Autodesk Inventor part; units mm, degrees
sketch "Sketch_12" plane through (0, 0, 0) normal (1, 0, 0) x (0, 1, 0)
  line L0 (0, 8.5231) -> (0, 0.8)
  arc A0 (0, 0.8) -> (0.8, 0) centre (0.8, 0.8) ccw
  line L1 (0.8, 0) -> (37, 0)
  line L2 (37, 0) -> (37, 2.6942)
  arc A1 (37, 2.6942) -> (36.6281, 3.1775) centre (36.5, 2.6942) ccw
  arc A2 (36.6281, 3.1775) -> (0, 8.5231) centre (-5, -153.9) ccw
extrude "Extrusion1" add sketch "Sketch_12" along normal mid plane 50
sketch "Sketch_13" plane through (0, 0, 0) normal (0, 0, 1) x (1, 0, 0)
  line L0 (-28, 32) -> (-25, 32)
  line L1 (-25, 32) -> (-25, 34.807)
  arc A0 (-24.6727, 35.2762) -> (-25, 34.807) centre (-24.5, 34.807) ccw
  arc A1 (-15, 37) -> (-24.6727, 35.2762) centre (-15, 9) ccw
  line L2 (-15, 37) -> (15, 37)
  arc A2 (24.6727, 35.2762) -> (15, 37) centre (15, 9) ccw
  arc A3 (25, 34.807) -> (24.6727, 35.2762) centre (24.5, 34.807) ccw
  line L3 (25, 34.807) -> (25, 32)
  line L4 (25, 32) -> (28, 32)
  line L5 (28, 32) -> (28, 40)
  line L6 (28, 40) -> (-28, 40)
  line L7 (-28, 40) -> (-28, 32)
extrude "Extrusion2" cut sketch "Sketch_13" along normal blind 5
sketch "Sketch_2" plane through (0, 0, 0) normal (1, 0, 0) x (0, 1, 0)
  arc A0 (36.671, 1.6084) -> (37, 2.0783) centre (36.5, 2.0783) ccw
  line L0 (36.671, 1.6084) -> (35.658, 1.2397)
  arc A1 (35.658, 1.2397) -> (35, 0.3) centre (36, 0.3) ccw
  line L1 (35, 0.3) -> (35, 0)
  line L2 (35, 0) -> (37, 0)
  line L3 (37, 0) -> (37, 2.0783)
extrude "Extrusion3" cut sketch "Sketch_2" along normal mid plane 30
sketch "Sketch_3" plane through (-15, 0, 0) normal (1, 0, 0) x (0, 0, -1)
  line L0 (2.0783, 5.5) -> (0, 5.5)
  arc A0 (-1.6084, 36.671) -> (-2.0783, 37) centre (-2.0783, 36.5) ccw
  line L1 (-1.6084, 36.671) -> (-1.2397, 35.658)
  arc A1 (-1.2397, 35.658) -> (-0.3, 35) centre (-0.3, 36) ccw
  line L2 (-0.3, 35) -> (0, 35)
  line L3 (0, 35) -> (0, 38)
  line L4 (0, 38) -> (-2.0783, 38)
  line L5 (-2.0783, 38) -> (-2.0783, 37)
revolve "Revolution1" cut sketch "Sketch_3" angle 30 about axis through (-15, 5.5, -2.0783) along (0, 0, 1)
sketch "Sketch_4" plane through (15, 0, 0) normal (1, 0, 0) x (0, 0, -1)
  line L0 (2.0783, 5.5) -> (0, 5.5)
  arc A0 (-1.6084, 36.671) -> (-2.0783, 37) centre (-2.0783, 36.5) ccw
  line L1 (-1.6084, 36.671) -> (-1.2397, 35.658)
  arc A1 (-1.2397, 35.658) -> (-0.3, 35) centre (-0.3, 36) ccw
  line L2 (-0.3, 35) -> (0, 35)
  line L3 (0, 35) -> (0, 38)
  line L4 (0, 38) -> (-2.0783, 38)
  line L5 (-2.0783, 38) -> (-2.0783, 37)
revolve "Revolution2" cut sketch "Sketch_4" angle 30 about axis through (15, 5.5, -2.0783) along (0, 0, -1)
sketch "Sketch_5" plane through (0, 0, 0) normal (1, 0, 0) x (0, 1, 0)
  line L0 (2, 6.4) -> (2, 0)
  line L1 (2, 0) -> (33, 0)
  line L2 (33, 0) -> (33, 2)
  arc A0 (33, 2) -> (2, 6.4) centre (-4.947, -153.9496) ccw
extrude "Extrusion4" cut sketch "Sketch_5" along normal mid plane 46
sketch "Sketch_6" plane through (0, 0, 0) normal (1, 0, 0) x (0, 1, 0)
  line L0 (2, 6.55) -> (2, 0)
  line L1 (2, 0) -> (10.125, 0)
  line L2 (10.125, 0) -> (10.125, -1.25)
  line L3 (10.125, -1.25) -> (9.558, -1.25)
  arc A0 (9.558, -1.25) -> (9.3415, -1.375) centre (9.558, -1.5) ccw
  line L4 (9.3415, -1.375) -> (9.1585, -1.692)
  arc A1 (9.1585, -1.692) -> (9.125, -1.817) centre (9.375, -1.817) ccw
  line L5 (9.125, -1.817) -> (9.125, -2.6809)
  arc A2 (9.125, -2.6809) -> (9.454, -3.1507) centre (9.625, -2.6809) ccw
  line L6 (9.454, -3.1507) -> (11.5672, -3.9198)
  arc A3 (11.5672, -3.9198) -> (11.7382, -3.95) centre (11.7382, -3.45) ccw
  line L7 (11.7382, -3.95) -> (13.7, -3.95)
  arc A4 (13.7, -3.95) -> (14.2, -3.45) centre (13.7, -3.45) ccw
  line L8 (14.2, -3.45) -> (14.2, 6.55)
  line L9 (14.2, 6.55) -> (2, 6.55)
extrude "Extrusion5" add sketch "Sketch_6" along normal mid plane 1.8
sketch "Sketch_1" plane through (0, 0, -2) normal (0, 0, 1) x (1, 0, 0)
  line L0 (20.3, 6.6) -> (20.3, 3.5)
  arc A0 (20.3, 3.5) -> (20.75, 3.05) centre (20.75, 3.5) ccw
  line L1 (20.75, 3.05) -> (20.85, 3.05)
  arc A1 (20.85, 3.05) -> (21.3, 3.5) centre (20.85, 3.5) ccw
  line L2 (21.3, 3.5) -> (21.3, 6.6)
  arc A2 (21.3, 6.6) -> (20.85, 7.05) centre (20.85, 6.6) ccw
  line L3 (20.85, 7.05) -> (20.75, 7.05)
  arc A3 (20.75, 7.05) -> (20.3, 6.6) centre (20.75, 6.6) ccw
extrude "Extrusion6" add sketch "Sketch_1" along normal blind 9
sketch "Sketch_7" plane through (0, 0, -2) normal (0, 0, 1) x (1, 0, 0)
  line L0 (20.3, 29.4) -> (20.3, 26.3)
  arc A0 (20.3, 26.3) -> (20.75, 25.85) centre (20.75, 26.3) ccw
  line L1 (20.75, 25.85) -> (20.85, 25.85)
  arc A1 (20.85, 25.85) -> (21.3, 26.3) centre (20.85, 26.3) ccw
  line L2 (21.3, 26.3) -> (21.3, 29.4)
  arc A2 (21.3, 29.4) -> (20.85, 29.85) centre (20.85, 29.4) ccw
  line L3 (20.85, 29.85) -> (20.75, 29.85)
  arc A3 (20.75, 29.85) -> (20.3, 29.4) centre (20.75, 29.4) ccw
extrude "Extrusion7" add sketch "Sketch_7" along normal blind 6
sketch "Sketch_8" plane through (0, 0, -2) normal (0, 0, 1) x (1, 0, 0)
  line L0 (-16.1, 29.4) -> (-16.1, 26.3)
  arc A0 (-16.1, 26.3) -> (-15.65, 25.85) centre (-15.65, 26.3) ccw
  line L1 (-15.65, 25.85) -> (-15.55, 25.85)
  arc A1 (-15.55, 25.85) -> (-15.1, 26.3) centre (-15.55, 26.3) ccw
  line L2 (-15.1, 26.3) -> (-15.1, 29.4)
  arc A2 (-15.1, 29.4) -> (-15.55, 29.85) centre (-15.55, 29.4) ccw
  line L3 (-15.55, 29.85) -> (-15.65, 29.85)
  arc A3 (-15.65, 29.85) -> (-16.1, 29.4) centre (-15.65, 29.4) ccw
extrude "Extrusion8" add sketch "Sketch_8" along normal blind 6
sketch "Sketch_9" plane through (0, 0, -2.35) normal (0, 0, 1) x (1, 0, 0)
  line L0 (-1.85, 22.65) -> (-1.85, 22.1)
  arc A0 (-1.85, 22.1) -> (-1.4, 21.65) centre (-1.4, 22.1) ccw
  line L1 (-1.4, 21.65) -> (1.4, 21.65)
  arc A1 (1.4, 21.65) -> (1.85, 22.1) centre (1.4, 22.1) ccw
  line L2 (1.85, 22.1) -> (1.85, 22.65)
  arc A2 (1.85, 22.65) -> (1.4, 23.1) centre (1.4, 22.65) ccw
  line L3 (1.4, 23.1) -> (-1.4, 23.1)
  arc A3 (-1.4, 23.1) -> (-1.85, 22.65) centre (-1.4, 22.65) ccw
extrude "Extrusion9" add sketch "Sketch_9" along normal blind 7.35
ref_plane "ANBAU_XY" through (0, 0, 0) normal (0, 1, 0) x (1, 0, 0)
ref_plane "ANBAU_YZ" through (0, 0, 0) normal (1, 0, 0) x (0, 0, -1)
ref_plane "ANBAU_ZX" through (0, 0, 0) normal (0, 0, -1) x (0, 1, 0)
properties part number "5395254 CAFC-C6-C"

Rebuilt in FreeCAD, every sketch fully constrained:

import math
import FreeCAD as App
import Part
import Sketcher

V = App.Vector
Q = App.Units.Quantity

doc = App.newDocument("Part")
body = doc.addObject("PartDesign::Body", "Body")

# Sketch on YZ plane
sketch1 = doc.addObject("Sketcher::SketchObject", "Sketch")
body.addObject(sketch1)
sketch1.AttachmentSupport = (doc.YZ_Plane, [""])
sketch1.MapMode = "FlatFace"
sketch1.addGeometry([
    Part.ArcOfCircle(Part.Circle(V(-5, -153.9, 0), V(0, 0, 1), 162.5), math.radians(75.16), math.radians(88.24)),  # 0
    Part.LineSegment(V(0, 8.5, 0), V(0, 0.8, 0)),  # 1
    Part.ArcOfCircle(Part.Circle(V(0.8, 0.8, 0), V(0, 0, 1), 0.8), math.radians(180), math.radians(270)),  # 2
    Part.LineSegment(V(0.8, 0, 0), V(37, 0, 0)),  # 3
    Part.LineSegment(V(37, 0, 0), V(37, 2.7, 0)),  # 4
    Part.ArcOfCircle(Part.Circle(V(36.5, 2.7, 0), V(0, 0, 1), 0.5), math.radians(0), math.radians(75)),  # 5
], False)
sketch1.addConstraint([
    Sketcher.Constraint("Coincident", 0, 2, 1, 1),
    Sketcher.Constraint("Tangent", 1, 2, 2, 1),
    Sketcher.Constraint("Tangent", 2, 2, 3, 1),
    Sketcher.Constraint("Coincident", 3, 2, 4, 1),
    Sketcher.Constraint("Tangent", 4, 2, 5, 1),
    Sketcher.Constraint("Tangent", 5, 2, 0, 1),
    Sketcher.Constraint("Vertical", 1),
    Sketcher.Constraint("Horizontal", 3),
    Sketcher.Constraint("Vertical", 4),
    Sketcher.Constraint("PointOnObject", 0, 2, -2),
    Sketcher.Constraint("PointOnObject", 2, 2, -1),
    Sketcher.Constraint("Radius", 2, 0.8),
    Sketcher.Constraint("Radius", 5, 0.5),
    Sketcher.Constraint("DistanceX", 3, 1, 3, 2, 36.2),
    Sketcher.Constraint("Radius", 0, 162.5056),
    Sketcher.Constraint("DistanceY", 1, 2, 1, 1, 7.723),
    Sketcher.Constraint("DistanceY", 4, 1, 4, 2, 2.6942),
])
pad1 = doc.addObject("PartDesign::Pad", "Pad")
body.addObject(pad1)
pad1.Profile = sketch1
pad1.Length = 50
pad1.Midplane = True

# Sketch on XY plane
sketch2 = doc.addObject("Sketcher::SketchObject", "Sketch001")
body.addObject(sketch2)
sketch2.AttachmentSupport = (doc.XY_Plane, [""])
sketch2.MapMode = "FlatFace"
sketch2.addGeometry([
    Part.LineSegment(V(-28, 40, 0), V(-28, 32, 0)),  # 0
    Part.LineSegment(V(-28, 32, 0), V(-25, 32, 0)),  # 1
    Part.LineSegment(V(-25, 32, 0), V(-25, 34.81, 0)),  # 2
    Part.ArcOfCircle(Part.Circle(V(-24.5, 34.81, 0), V(0, 0, 1), 0.5), math.radians(110), math.radians(180)),  # 3
    Part.ArcOfCircle(Part.Circle(V(-15, 9, 0), V(0, 0, 1), 28), math.radians(90), math.radians(110)),  # 4
    Part.LineSegment(V(-15, 37, 0), V(15, 37, 0)),  # 5
    Part.ArcOfCircle(Part.Circle(V(15, 9, 0), V(0, 0, 1), 28), math.radians(70), math.radians(90)),  # 6
    Part.ArcOfCircle(Part.Circle(V(24.5, 34.81, 0), V(0, 0, 1), 0.5), math.radians(0), math.radians(70)),  # 7
    Part.LineSegment(V(25, 34.81, 0), V(25, 32, 0)),  # 8
    Part.LineSegment(V(25, 32, 0), V(28, 32, 0)),  # 9
    Part.LineSegment(V(28, 32, 0), V(28, 40, 0)),  # 10
    Part.LineSegment(V(28, 40, 0), V(-28, 40, 0)),  # 11
], False)
sketch2.addConstraint([
    Sketcher.Constraint("Coincident", 0, 2, 1, 1),
    Sketcher.Constraint("Coincident", 1, 2, 2, 1),
    Sketcher.Constraint("Tangent", 2, 2, 3, 2),
    Sketcher.Constraint("Tangent", 3, 1, 4, 2),
    Sketcher.Constraint("Tangent", 4, 1, 5, 1),
    Sketcher.Constraint("Tangent", 5, 2, 6, 2),
    Sketcher.Constraint("Tangent", 6, 1, 7, 2),
    Sketcher.Constraint("Tangent", 7, 1, 8, 1),
    Sketcher.Constraint("Coincident", 8, 2, 9, 1),
    Sketcher.Constraint("Coincident", 9, 2, 10, 1),
    Sketcher.Constraint("Coincident", 10, 2, 11, 1),
    Sketcher.Constraint("Coincident", 11, 2, 0, 1),
    Sketcher.Constraint("Vertical", 0),
    Sketcher.Constraint("Horizontal", 1),
    Sketcher.Constraint("Vertical", 2),
    Sketcher.Constraint("Horizontal", 5),
    Sketcher.Constraint("Vertical", 8),
    Sketcher.Constraint("Horizontal", 9),
    Sketcher.Constraint("Vertical", 10),
    Sketcher.Constraint("Horizontal", 11),
    Sketcher.Constraint("Equal", 4, 6),
    Sketcher.Constraint("Equal", 3, 7),
    Sketcher.Constraint("Symmetric", 3, 3, 7, 3, -2),
    Sketcher.Constraint("Symmetric", 0, 2, 9, 2, -2),
    Sketcher.Constraint("Radius", 4, 28.0),
    Sketcher.Constraint("Radius", 3, 0.5),
    Sketcher.Constraint("DistanceX", 1, 1, 1, 2, 3.0),
    Sketcher.Constraint("DistanceX", 5, 1, 5, 2, 30.0),
    Sketcher.Constraint("DistanceX", 11, 2, 11, 1, 56.0),
    Sketcher.Constraint("DistanceY", 0, 2, 0, 1, 8.0),
    Sketcher.Constraint("DistanceY", -1, 1, 4, 3, 9.0),
    Sketcher.Constraint("DistanceY", -1, 1, 0, 2, 32.0),
])
pocket1 = doc.addObject("PartDesign::Pocket", "Pocket")
body.addObject(pocket1)
pocket1.Profile = sketch2
pocket1.Length = 5
pocket1.Reversed = True

# Sketch on YZ plane
sketch3 = doc.addObject("Sketcher::SketchObject", "Sketch002")
body.addObject(sketch3)
sketch3.AttachmentSupport = (doc.YZ_Plane, [""])
sketch3.MapMode = "FlatFace"
sketch3.addGeometry([
    Part.ArcOfCircle(Part.Circle(V(36.5, 2.08, 0), V(0, 0, 1), 0.5), math.radians(-70), math.radians(0)),  # 0
    Part.LineSegment(V(36.67, 1.61, 0), V(35.66, 1.24, 0)),  # 1
    Part.ArcOfCircle(Part.Circle(V(36, 0.3, 0), V(0, 0, 1), 1), math.radians(110), math.radians(180)),  # 2
    Part.LineSegment(V(35, 0.3, 0), V(35, 0, 0)),  # 3
    Part.LineSegment(V(35, 0, 0), V(37, 0, 0)),  # 4
    Part.LineSegment(V(37, 0, 0), V(37, 2.08, 0)),  # 5
], False)
sketch3.addConstraint([
    Sketcher.Constraint("Tangent", 0, 1, 1, 1),
    Sketcher.Constraint("Tangent", 1, 2, 2, 1),
    Sketcher.Constraint("Tangent", 2, 2, 3, 1),
    Sketcher.Constraint("Coincident", 3, 2, 4, 1),
    Sketcher.Constraint("Coincident", 4, 2, 5, 1),
    Sketcher.Constraint("Tangent", 5, 2, 0, 2),
    Sketcher.Constraint("Vertical", 3),
    Sketcher.Constraint("Horizontal", 4),
    Sketcher.Constraint("Vertical", 5),
    Sketcher.Constraint("PointOnObject", 3, 2, -1),
    Sketcher.Constraint("Radius", 2, 1.0),
    Sketcher.Constraint("Radius", 0, 0.5),
    Sketcher.Constraint("DistanceX", 4, 1, 4, 2, 2.0),
    Sketcher.Constraint("Angle", 1, Q("-160 deg")),
    Sketcher.Constraint("DistanceY", 3, 2, 3, 1, 0.3),
    Sketcher.Constraint("DistanceX", -1, 1, 2, 3, 36.0),
])
pocket2 = doc.addObject("PartDesign::Pocket", "Pocket001")
body.addObject(pocket2)
pocket2.Profile = sketch3
pocket2.Length = 30
pocket2.Midplane = True

# Sketch on YZ plane
sketch4 = doc.addObject("Sketcher::SketchObject", "Sketch003")
body.addObject(sketch4)
sketch4.AttachmentSupport = (doc.YZ_Plane, [""])
sketch4.MapMode = "FlatFace"
sketch4.AttachmentOffset = App.Placement(V(0, 0, -15), App.Rotation())
sketch4.addGeometry([
    Part.ArcOfCircle(Part.Circle(V(36.5, 2.08, 0), V(0, 0, 1), 0.5), math.radians(-70), math.radians(0)),  # 0
    Part.LineSegment(V(36.67, 1.61, 0), V(35.66, 1.24, 0)),  # 1
    Part.ArcOfCircle(Part.Circle(V(36, 0.3, 0), V(0, 0, 1), 1), math.radians(110), math.radians(180)),  # 2
    Part.LineSegment(V(35, 0.3, 0), V(35, 0, 0)),  # 3
    Part.LineSegment(V(35, 0, 0), V(38, 0, 0)),  # 4
    Part.LineSegment(V(38, 0, 0), V(38, 2.08, 0)),  # 5
    Part.LineSegment(V(38, 2.08, 0), V(37, 2.08, 0)),  # 6
], False)
sketch4.addGeometry(Part.LineSegment(V(5.5, 0, 0), V(5.5, 2.08, 0)), True)  # axis
sketch4.addConstraint([
    Sketcher.Constraint("Tangent", 0, 1, 1, 1),
    Sketcher.Constraint("Tangent", 1, 2, 2, 1),
    Sketcher.Constraint("Tangent", 2, 2, 3, 1),
    Sketcher.Constraint("Coincident", 3, 2, 4, 1),
    Sketcher.Constraint("Coincident", 4, 2, 5, 1),
    Sketcher.Constraint("Coincident", 5, 2, 6, 1),
    Sketcher.Constraint("Coincident", 6, 2, 0, 2),
    Sketcher.Constraint("Vertical", 3),
    Sketcher.Constraint("Horizontal", 4),
    Sketcher.Constraint("Vertical", 5),
    Sketcher.Constraint("Horizontal", 6),
    Sketcher.Constraint("Vertical", 7),
    Sketcher.Constraint("PointOnObject", 3, 2, -1),
    Sketcher.Constraint("PointOnObject", 7, 1, -1),
    Sketcher.Constraint("Horizontal", 0, 3, 5, 2),
    Sketcher.Constraint("Horizontal", 6, 2, 7, 2),
    Sketcher.Constraint("Radius", 2, 1.0),
    Sketcher.Constraint("Radius", 0, 0.5),
    Sketcher.Constraint("DistanceX", 4, 1, 4, 2, 3.0),
    Sketcher.Constraint("DistanceX", 6, 2, 6, 1, 1.0),
    Sketcher.Constraint("Angle", 1, Q("-160 deg")),
    Sketcher.Constraint("DistanceY", 3, 2, 3, 1, 0.3),
    Sketcher.Constraint("DistanceX", -1, 1, 2, 3, 36.0),
    Sketcher.Constraint("DistanceX", 7, 1, 0, 3, 31.0),
])
groove = doc.addObject("PartDesign::Groove", "Groove")
body.addObject(groove)
groove.Profile = sketch4
groove.ReferenceAxis = (sketch4, ["Axis0"])
groove.Angle = 30

# Sketch on YZ plane
sketch5 = doc.addObject("Sketcher::SketchObject", "Sketch004")
body.addObject(sketch5)
sketch5.AttachmentSupport = (doc.YZ_Plane, [""])
sketch5.MapMode = "FlatFace"
sketch5.AttachmentOffset = App.Placement(V(0, 0, 15), App.Rotation())
sketch5.addGeometry([
    Part.ArcOfCircle(Part.Circle(V(36.5, 2.08, 0), V(0, 0, 1), 0.5), math.radians(-70), math.radians(0)),  # 0
    Part.LineSegment(V(36.67, 1.61, 0), V(35.66, 1.24, 0)),  # 1
    Part.ArcOfCircle(Part.Circle(V(36, 0.3, 0), V(0, 0, 1), 1), math.radians(110), math.radians(180)),  # 2
    Part.LineSegment(V(35, 0.3, 0), V(35, 0, 0)),  # 3
    Part.LineSegment(V(35, 0, 0), V(38, 0, 0)),  # 4
    Part.LineSegment(V(38, 0, 0), V(38, 2.08, 0)),  # 5
    Part.LineSegment(V(38, 2.08, 0), V(37, 2.08, 0)),  # 6
], False)
sketch5.addGeometry(Part.LineSegment(V(5.5, 2.08, 0), V(5.5, 0, 0)), True)  # axis
sketch5.addConstraint([
    Sketcher.Constraint("Tangent", 0, 1, 1, 1),
    Sketcher.Constraint("Tangent", 1, 2, 2, 1),
    Sketcher.Constraint("Tangent", 2, 2, 3, 1),
    Sketcher.Constraint("Coincident", 3, 2, 4, 1),
    Sketcher.Constraint("Coincident", 4, 2, 5, 1),
    Sketcher.Constraint("Coincident", 5, 2, 6, 1),
    Sketcher.Constraint("Coincident", 6, 2, 0, 2),
    Sketcher.Constraint("Vertical", 3),
    Sketcher.Constraint("Horizontal", 4),
    Sketcher.Constraint("Vertical", 5),
    Sketcher.Constraint("Horizontal", 6),
    Sketcher.Constraint("Vertical", 7),
    Sketcher.Constraint("PointOnObject", 3, 2, -1),
    Sketcher.Constraint("PointOnObject", 7, 2, -1),
    Sketcher.Constraint("Horizontal", 0, 3, 5, 2),
    Sketcher.Constraint("Horizontal", 6, 2, 7, 1),
    Sketcher.Constraint("Radius", 2, 1.0),
    Sketcher.Constraint("Radius", 0, 0.5),
    Sketcher.Constraint("DistanceX", 4, 1, 4, 2, 3.0),
    Sketcher.Constraint("DistanceX", 6, 2, 6, 1, 1.0),
    Sketcher.Constraint("Angle", 1, Q("-160 deg")),
    Sketcher.Constraint("DistanceY", 3, 2, 3, 1, 0.3),
    Sketcher.Constraint("DistanceX", -1, 1, 2, 3, 36.0),
    Sketcher.Constraint("DistanceX", 7, 1, 0, 3, 31.0),
])
groove2 = doc.addObject("PartDesign::Groove", "Groove001")
body.addObject(groove2)
groove2.Profile = sketch5
groove2.ReferenceAxis = (sketch5, ["Axis0"])
groove2.Angle = 30

# Sketch on YZ plane
sketch6 = doc.addObject("Sketcher::SketchObject", "Sketch005")
body.addObject(sketch6)
sketch6.AttachmentSupport = (doc.YZ_Plane, [""])
sketch6.MapMode = "FlatFace"
sketch6.addGeometry([
    Part.ArcOfCircle(Part.Circle(V(-4.9, -153.9, 0), V(0, 0, 1), 160.5), math.radians(76.32), math.radians(87.52)),
    Part.LineSegment(V(2, 6.4, 0), V(2, 0, 0)),
    Part.LineSegment(V(2, 0, 0), V(33, 0, 0)),
    Part.LineSegment(V(33, 0, 0), V(33, 2, 0)),
], False)
sketch6.addConstraint([
    Sketcher.Constraint("Coincident", 0, 2, 1, 1),
    Sketcher.Constraint("Coincident", 1, 2, 2, 1),
    Sketcher.Constraint("Coincident", 2, 2, 3, 1),
    Sketcher.Constraint("Coincident", 3, 2, 0, 1),
    Sketcher.Constraint("Vertical", 1),
    Sketcher.Constraint("Horizontal", 2),
    Sketcher.Constraint("Vertical", 3),
    Sketcher.Constraint("PointOnObject", 1, 2, -1),
    Sketcher.Constraint("Radius", 0, 160.5),
    Sketcher.Constraint("DistanceX", 2, 1, 2, 2, 31.0),
    Sketcher.Constraint("DistanceY", 3, 1, 3, 2, 2.0),
    Sketcher.Constraint("DistanceY", 1, 2, 1, 1, 6.4),
    Sketcher.Constraint("DistanceX", -1, 1, 0, 2, 2.0),
])
pocket3 = doc.addObject("PartDesign::Pocket", "Pocket002")
body.addObject(pocket3)
pocket3.Profile = sketch6
pocket3.Length = 46
pocket3.Midplane = True

# Sketch on YZ plane
sketch7 = doc.addObject("Sketcher::SketchObject", "Sketch006")
body.addObject(sketch7)
sketch7.AttachmentSupport = (doc.YZ_Plane, [""])
sketch7.MapMode = "FlatFace"
sketch7.addGeometry([
    Part.LineSegment(V(14.2, 6.55, 0), V(2, 6.55, 0)),  # 0
    Part.LineSegment(V(2, 6.55, 0), V(2, 0, 0)),  # 1
    Part.LineSegment(V(2, 0, 0), V(10.12, 0, 0)),  # 2
    Part.LineSegment(V(10.12, 0, 0), V(10.12, -1.25, 0)),  # 3
    Part.LineSegment(V(10.12, -1.25, 0), V(9.56, -1.25, 0)),  # 4
    Part.ArcOfCircle(Part.Circle(V(9.56, -1.5, 0), V(0, 0, 1), 0.25), math.radians(90), math.radians(150)),  # 5
    Part.LineSegment(V(9.34, -1.38, 0), V(9.16, -1.69, 0)),  # 6
    Part.ArcOfCircle(Part.Circle(V(9.38, -1.82, 0), V(0, 0, 1), 0.25), math.radians(150), math.radians(180)),  # 7
    Part.LineSegment(V(9.12, -1.82, 0), V(9.12, -2.68, 0)),  # 8
    Part.ArcOfCircle(Part.Circle(V(9.62, -2.68, 0), V(0, 0, 1), 0.5), math.radians(180), math.radians(250)),  # 9
    Part.LineSegment(V(9.45, -3.15, 0), V(11.57, -3.92, 0)),  # 10
    Part.ArcOfCircle(Part.Circle(V(11.74, -3.45, 0), V(0, 0, 1), 0.5), math.radians(-109.99), math.radians(-90.05)),  # 11
    Part.LineSegment(V(11.74, -3.95, 0), V(13.7, -3.95, 0)),  # 12
    Part.ArcOfCircle(Part.Circle(V(13.7, -3.45, 0), V(0, 0, 1), 0.5), math.radians(-90), math.radians(0)),  # 13
    Part.LineSegment(V(14.2, -3.45, 0), V(14.2, 6.55, 0)),  # 14
], False)
sketch7.addConstraint([
    Sketcher.Constraint("Coincident", 0, 2, 1, 1),
    Sketcher.Constraint("Coincident", 1, 2, 2, 1),
    Sketcher.Constraint("Coincident", 2, 2, 3, 1),
    Sketcher.Constraint("Coincident", 3, 2, 4, 1),
    Sketcher.Constraint("Tangent", 4, 2, 5, 1),
    Sketcher.Constraint("Tangent", 5, 2, 6, 1),
    Sketcher.Constraint("Tangent", 6, 2, 7, 1),
    Sketcher.Constraint("Tangent", 7, 2, 8, 1),
    Sketcher.Constraint("Tangent", 8, 2, 9, 1),
    Sketcher.Constraint("Tangent", 9, 2, 10, 1),
    Sketcher.Constraint("Tangent", 10, 2, 11, 1),
    Sketcher.Constraint("Coincident", 11, 2, 12, 1),
    Sketcher.Constraint("Tangent", 12, 2, 13, 1),
    Sketcher.Constraint("Tangent", 13, 2, 14, 1),
    Sketcher.Constraint("Coincident", 14, 2, 0, 1),
    Sketcher.Constraint("Horizontal", 0),
    Sketcher.Constraint("Vertical", 1),
    Sketcher.Constraint("Horizontal", 2),
    Sketcher.Constraint("Vertical", 3),
    Sketcher.Constraint("Horizontal", 4),
    Sketcher.Constraint("Vertical", 8),
    Sketcher.Constraint("Horizontal", 12),
    Sketcher.Constraint("Vertical", 14),
    Sketcher.Constraint("Equal", 5, 7),
    Sketcher.Constraint("Equal", 9, 13),
    Sketcher.Constraint("PointOnObject", 1, 2, -1),
    Sketcher.Constraint("Radius", 9, 0.5),
    Sketcher.Constraint("DistanceY", 14, 1, 14, 2, 10.0),
    Sketcher.Constraint("Angle", 10, Q("-19.999 deg")),
    Sketcher.Constraint("Radius", 5, 0.25),
    Sketcher.Constraint("DistanceX", 0, 2, 0, 1, 12.2),
    Sketcher.Constraint("DistanceX", -1, 1, 0, 2, 2.0),
    Sketcher.Constraint("DistanceY", 1, 2, 1, 1, 6.55),
    Sketcher.Constraint("DistanceY", 3, 2, 3, 1, 1.25),
    Sketcher.Constraint("Radius", 11, 0.5015),
    Sketcher.Constraint("DistanceX", 9, 3, 2, 2, 0.5),
    Sketcher.Constraint("DistanceX", 2, 1, 2, 2, 8.125),
    Sketcher.Constraint("DistanceX", 4, 2, 4, 1, 0.567),
    Sketcher.Constraint("DistanceY", 8, 2, 8, 1, 0.864),
    Sketcher.Constraint("Distance", 6, 0.366),
    Sketcher.Constraint("DistanceX", 12, 1, 12, 2, 1.9618),
])
pad2 = doc.addObject("PartDesign::Pad", "Pad001")
body.addObject(pad2)
pad2.Profile = sketch7
pad2.Length = 1.8
pad2.Midplane = True

# Sketch on XY plane
sketch8 = doc.addObject("Sketcher::SketchObject", "Sketch007")
body.addObject(sketch8)
sketch8.AttachmentSupport = (doc.XY_Plane, [""])
sketch8.MapMode = "FlatFace"
sketch8.AttachmentOffset = App.Placement(V(0, 0, -2), App.Rotation())
sketch8.addGeometry([
    Part.ArcOfCircle(Part.Circle(V(20.75, 6.6, 0), V(0, 0, 1), 0.45), math.radians(90), math.radians(180)),  # 0
    Part.LineSegment(V(20.3, 6.6, 0), V(20.3, 3.5, 0)),  # 1
    Part.ArcOfCircle(Part.Circle(V(20.75, 3.5, 0), V(0, 0, 1), 0.45), math.radians(180), math.radians(270)),  # 2
    Part.LineSegment(V(20.75, 3.05, 0), V(20.85, 3.05, 0)),  # 3
    Part.ArcOfCircle(Part.Circle(V(20.85, 3.5, 0), V(0, 0, 1), 0.45), math.radians(-90), math.radians(0)),  # 4
    Part.LineSegment(V(21.3, 3.5, 0), V(21.3, 6.6, 0)),  # 5
    Part.ArcOfCircle(Part.Circle(V(20.85, 6.6, 0), V(0, 0, 1), 0.45), math.radians(0), math.radians(90)),  # 6
    Part.LineSegment(V(20.85, 7.05, 0), V(20.75, 7.05, 0)),  # 7
], False)
sketch8.addConstraint([
    Sketcher.Constraint("Tangent", 0, 2, 1, 1),
    Sketcher.Constraint("Tangent", 1, 2, 2, 1),
    Sketcher.Constraint("Tangent", 2, 2, 3, 1),
    Sketcher.Constraint("Tangent", 3, 2, 4, 1),
    Sketcher.Constraint("Tangent", 4, 2, 5, 1),
    Sketcher.Constraint("Tangent", 5, 2, 6, 1),
    Sketcher.Constraint("Tangent", 6, 2, 7, 1),
    Sketcher.Constraint("Tangent", 7, 2, 0, 1),
    Sketcher.Constraint("Vertical", 1),
    Sketcher.Constraint("Horizontal", 3),
    Sketcher.Constraint("Vertical", 5),
    Sketcher.Constraint("Horizontal", 7),
    Sketcher.Constraint("Equal", 0, 2),
    Sketcher.Constraint("Equal", 2, 4),
    Sketcher.Constraint("Equal", 4, 6),
    Sketcher.Constraint("Radius", 0, 0.45),
    Sketcher.Constraint("DistanceX", 3, 1, 3, 2, 0.1),
    Sketcher.Constraint("DistanceY", 1, 2, 1, 1, 3.1),
    Sketcher.Constraint("DistanceY", -1, 1, 0, 3, 6.6),
    Sketcher.Constraint("DistanceX", -1, 1, 0, 2, 20.3),
])
pad3 = doc.addObject("PartDesign::Pad", "Pad002")
body.addObject(pad3)
pad3.Profile = sketch8
pad3.Length = 9

# Sketch on XY plane
sketch9 = doc.addObject("Sketcher::SketchObject", "Sketch008")
body.addObject(sketch9)
sketch9.AttachmentSupport = (doc.XY_Plane, [""])
sketch9.MapMode = "FlatFace"
sketch9.AttachmentOffset = App.Placement(V(0, 0, -2), App.Rotation())
sketch9.addGeometry([
    Part.ArcOfCircle(Part.Circle(V(20.75, 29.4, 0), V(0, 0, 1), 0.45), math.radians(90), math.radians(180)),  # 0
    Part.LineSegment(V(20.3, 29.4, 0), V(20.3, 26.3, 0)),  # 1
    Part.ArcOfCircle(Part.Circle(V(20.75, 26.3, 0), V(0, 0, 1), 0.45), math.radians(180), math.radians(270)),  # 2
    Part.LineSegment(V(20.75, 25.85, 0), V(20.85, 25.85, 0)),  # 3
    Part.ArcOfCircle(Part.Circle(V(20.85, 26.3, 0), V(0, 0, 1), 0.45), math.radians(-90), math.radians(0)),  # 4
    Part.LineSegment(V(21.3, 26.3, 0), V(21.3, 29.4, 0)),  # 5
    Part.ArcOfCircle(Part.Circle(V(20.85, 29.4, 0), V(0, 0, 1), 0.45), math.radians(0), math.radians(90)),  # 6
    Part.LineSegment(V(20.85, 29.85, 0), V(20.75, 29.85, 0)),  # 7
], False)
sketch9.addConstraint([
    Sketcher.Constraint("Tangent", 0, 2, 1, 1),
    Sketcher.Constraint("Tangent", 1, 2, 2, 1),
    Sketcher.Constraint("Tangent", 2, 2, 3, 1),
    Sketcher.Constraint("Tangent", 3, 2, 4, 1),
    Sketcher.Constraint("Tangent", 4, 2, 5, 1),
    Sketcher.Constraint("Tangent", 5, 2, 6, 1),
    Sketcher.Constraint("Tangent", 6, 2, 7, 1),
    Sketcher.Constraint("Tangent", 7, 2, 0, 1),
    Sketcher.Constraint("Vertical", 1),
    Sketcher.Constraint("Horizontal", 3),
    Sketcher.Constraint("Vertical", 5),
    Sketcher.Constraint("Horizontal", 7),
    Sketcher.Constraint("Equal", 0, 2),
    Sketcher.Constraint("Equal", 2, 4),
    Sketcher.Constraint("Equal", 4, 6),
    Sketcher.Constraint("Radius", 0, 0.45),
    Sketcher.Constraint("DistanceX", 3, 1, 3, 2, 0.1),
    Sketcher.Constraint("DistanceY", 1, 2, 1, 1, 3.1),
    Sketcher.Constraint("DistanceY", -1, 1, 0, 3, 29.4),
    Sketcher.Constraint("DistanceX", -1, 1, 0, 2, 20.3),
])
pad4 = doc.addObject("PartDesign::Pad", "Pad003")
body.addObject(pad4)
pad4.Profile = sketch9
pad4.Length = 6

# Sketch on XY plane
sketch10 = doc.addObject("Sketcher::SketchObject", "Sketch009")
body.addObject(sketch10)
sketch10.AttachmentSupport = (doc.XY_Plane, [""])
sketch10.MapMode = "FlatFace"
sketch10.AttachmentOffset = App.Placement(V(0, 0, -2), App.Rotation())
sketch10.addGeometry([
    Part.ArcOfCircle(Part.Circle(V(-15.65, 29.4, 0), V(0, 0, 1), 0.45), math.radians(90), math.radians(180)),  # 0
    Part.LineSegment(V(-16.1, 29.4, 0), V(-16.1, 26.3, 0)),  # 1
    Part.ArcOfCircle(Part.Circle(V(-15.65, 26.3, 0), V(0, 0, 1), 0.45), math.radians(180), math.radians(270)),  # 2
    Part.LineSegment(V(-15.65, 25.85, 0), V(-15.55, 25.85, 0)),  # 3
    Part.ArcOfCircle(Part.Circle(V(-15.55, 26.3, 0), V(0, 0, 1), 0.45), math.radians(-90), math.radians(0)),  # 4
    Part.LineSegment(V(-15.1, 26.3, 0), V(-15.1, 29.4, 0)),  # 5
    Part.ArcOfCircle(Part.Circle(V(-15.55, 29.4, 0), V(0, 0, 1), 0.45), math.radians(0), math.radians(90)),  # 6
    Part.LineSegment(V(-15.55, 29.85, 0), V(-15.65, 29.85, 0)),  # 7
], False)
sketch10.addConstraint([
    Sketcher.Constraint("Tangent", 0, 2, 1, 1),
    Sketcher.Constraint("Tangent", 1, 2, 2, 1),
    Sketcher.Constraint("Tangent", 2, 2, 3, 1),
    Sketcher.Constraint("Tangent", 3, 2, 4, 1),
    Sketcher.Constraint("Tangent", 4, 2, 5, 1),
    Sketcher.Constraint("Tangent", 5, 2, 6, 1),
    Sketcher.Constraint("Tangent", 6, 2, 7, 1),
    Sketcher.Constraint("Tangent", 7, 2, 0, 1),
    Sketcher.Constraint("Vertical", 1),
    Sketcher.Constraint("Horizontal", 3),
    Sketcher.Constraint("Vertical", 5),
    Sketcher.Constraint("Horizontal", 7),
    Sketcher.Constraint("Equal", 0, 2),
    Sketcher.Constraint("Equal", 2, 4),
    Sketcher.Constraint("Equal", 4, 6),
    Sketcher.Constraint("Radius", 0, 0.45),
    Sketcher.Constraint("DistanceX", 3, 1, 3, 2, 0.1),
    Sketcher.Constraint("DistanceY", 1, 2, 1, 1, 3.1),
    Sketcher.Constraint("DistanceY", -1, 1, 0, 3, 29.4),
    Sketcher.Constraint("DistanceX", 0, 2, -1, 1, 16.1),
])
pad5 = doc.addObject("PartDesign::Pad", "Pad004")
body.addObject(pad5)
pad5.Profile = sketch10
pad5.Length = 6

# Sketch on XY plane
sketch11 = doc.addObject("Sketcher::SketchObject", "Sketch010")
body.addObject(sketch11)
sketch11.AttachmentSupport = (doc.XY_Plane, [""])
sketch11.MapMode = "FlatFace"
sketch11.AttachmentOffset = App.Placement(V(0, 0, -2.35), App.Rotation())
sketch11.addGeometry([
    Part.ArcOfCircle(Part.Circle(V(-1.4, 22.65, 0), V(0, 0, 1), 0.45), math.radians(90), math.radians(180)),  # 0
    Part.LineSegment(V(-1.85, 22.65, 0), V(-1.85, 22.1, 0)),  # 1
    Part.ArcOfCircle(Part.Circle(V(-1.4, 22.1, 0), V(0, 0, 1), 0.45), math.radians(180), math.radians(270)),  # 2
    Part.LineSegment(V(-1.4, 21.65, 0), V(1.4, 21.65, 0)),  # 3
    Part.ArcOfCircle(Part.Circle(V(1.4, 22.1, 0), V(0, 0, 1), 0.45), math.radians(-90), math.radians(0)),  # 4
    Part.LineSegment(V(1.85, 22.1, 0), V(1.85, 22.65, 0)),  # 5
    Part.ArcOfCircle(Part.Circle(V(1.4, 22.65, 0), V(0, 0, 1), 0.45), math.radians(0), math.radians(90)),  # 6
    Part.LineSegment(V(1.4, 23.1, 0), V(-1.4, 23.1, 0)),  # 7
], False)
sketch11.addConstraint([
    Sketcher.Constraint("Tangent", 0, 2, 1, 1),
    Sketcher.Constraint("Tangent", 1, 2, 2, 1),
    Sketcher.Constraint("Tangent", 2, 2, 3, 1),
    Sketcher.Constraint("Tangent", 3, 2, 4, 1),
    Sketcher.Constraint("Tangent", 4, 2, 5, 1),
    Sketcher.Constraint("Tangent", 5, 2, 6, 1),
    Sketcher.Constraint("Tangent", 6, 2, 7, 1),
    Sketcher.Constraint("Tangent", 7, 2, 0, 1),
    Sketcher.Constraint("Vertical", 1),
    Sketcher.Constraint("Horizontal", 3),
    Sketcher.Constraint("Vertical", 5),
    Sketcher.Constraint("Horizontal", 7),
    Sketcher.Constraint("Equal", 0, 2),
    Sketcher.Constraint("Equal", 2, 4),
    Sketcher.Constraint("Equal", 4, 6),
    Sketcher.Constraint("Radius", 0, 0.45),
    Sketcher.Constraint("DistanceX", 3, 1, 3, 2, 2.8),
    Sketcher.Constraint("DistanceY", 2, 2, 0, 3, 1.0),
    Sketcher.Constraint("DistanceX", 0, 3, -1, 1, 1.4),
    Sketcher.Constraint("DistanceY", -1, 1, 2, 3, 22.1),
])
pad6 = doc.addObject("PartDesign::Pad", "Pad005")
body.addObject(pad6)
pad6.Profile = sketch11
pad6.Length = 7.35

doc.recompute()
